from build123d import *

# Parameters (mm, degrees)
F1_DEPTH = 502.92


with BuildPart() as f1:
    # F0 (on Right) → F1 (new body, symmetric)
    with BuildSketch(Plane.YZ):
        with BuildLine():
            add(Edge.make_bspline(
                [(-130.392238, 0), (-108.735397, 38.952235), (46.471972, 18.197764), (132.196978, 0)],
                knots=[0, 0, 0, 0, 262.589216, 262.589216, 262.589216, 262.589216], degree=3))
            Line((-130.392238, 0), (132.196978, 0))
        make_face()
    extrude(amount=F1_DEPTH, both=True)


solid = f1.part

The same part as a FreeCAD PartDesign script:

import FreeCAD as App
import Part
import Sketcher
from FreeCAD import Vector
Q = App.Units.Quantity

doc = App.newDocument("Part")
body = doc.addObject("PartDesign::Body", "Body")

sketch1 = body.newObject("Sketcher::SketchObject", "Sketch")
sketch1.AttachmentSupport = (doc.getObject("YZ_Plane"), [""])
sketch1.MapMode = "FlatFace"
sketch1.addGeometry(Part.BSplineCurve([Vector(-130.392238, 0, 0), Vector(-108.735397, 38.952235, 0), Vector(46.471972, 18.197764, 0), Vector(132.196978, 0, 0)], [4, 4], [0, 262.589216], False, 3, [1, 1, 1, 1], False), False)
sketch1.addGeometry(Part.LineSegment(Vector(-130.392238, 0, 0), Vector(132.196978, 0, 0)), False)
sketch1.addConstraint(Sketcher.Constraint("Block", 0))
sketch1.addConstraint(Sketcher.Constraint("Coincident", 0, 1, 1, 1))
sketch1.addConstraint(Sketcher.Constraint("Coincident", 1, 2, 0, 2))
pad1 = body.newObject("PartDesign::Pad", "Pad")
pad1.Profile = sketch1
pad1.Length = Q("39.6 in")
pad1.Midplane = True

doc.recompute()
